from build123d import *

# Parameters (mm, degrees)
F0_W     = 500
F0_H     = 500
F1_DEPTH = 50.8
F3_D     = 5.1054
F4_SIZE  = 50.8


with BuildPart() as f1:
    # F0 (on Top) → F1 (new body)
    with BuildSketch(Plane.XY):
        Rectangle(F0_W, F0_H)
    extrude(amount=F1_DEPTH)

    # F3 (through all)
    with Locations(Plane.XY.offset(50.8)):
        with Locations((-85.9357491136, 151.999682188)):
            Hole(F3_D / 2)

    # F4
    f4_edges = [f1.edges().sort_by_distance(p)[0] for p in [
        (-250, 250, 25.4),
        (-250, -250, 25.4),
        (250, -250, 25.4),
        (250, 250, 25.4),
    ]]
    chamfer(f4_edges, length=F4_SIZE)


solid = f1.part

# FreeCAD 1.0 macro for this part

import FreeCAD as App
import Part
import Sketcher

V = App.Vector
Q = App.Units.Quantity


def edges_at(feature, points):
    """Names of the edges that pass closest to the given points."""
    edges = feature.Shape.Edges
    near = lambda p: min(range(len(edges)), key=lambda i: edges[i].distToShape(Part.Vertex(*p))[0])
    return sorted({f"Edge{near(p) + 1}" for p in points})

doc = App.newDocument("Part")
params = doc.addObject("Spreadsheet::Sheet", "Params")
for row, (alias, value) in enumerate([
    ("pad1_length", "2 in"),
    ("sketch2_diameter", "0.201 in"),
    ("hole_diameter", "0.201 in"),
    ("chamfer_size", "2 in"),
], start=1):
    params.set(f"A{row}", alias)
    params.set(f"B{row}", "=" + value)
    params.setAlias(f"B{row}", alias)

body = doc.addObject("PartDesign::Body", "Body")

# Sketch on XY plane
sketch1 = doc.addObject("Sketcher::SketchObject", "Sketch")
body.addObject(sketch1)
sketch1.AttachmentSupport = (doc.XY_Plane, [""])
sketch1.MapMode = "FlatFace"
sketch1.addGeometry(Part.LineSegment(V(-250, 250, 0), V(-250, -250, 0)), False)
sketch1.addGeometry(Part.LineSegment(V(-250, -250, 0), V(250, -250, 0)), False)
sketch1.addGeometry(Part.LineSegment(V(250, -250, 0), V(250, 250, 0)), False)
sketch1.addGeometry(Part.LineSegment(V(250, 250, 0), V(-250, 250, 0)), False)
sketch1.addConstraint(Sketcher.Constraint("Coincident", 0, 2, 1, 1))
sketch1.addConstraint(Sketcher.Constraint("Coincident", 1, 2, 2, 1))
sketch1.addConstraint(Sketcher.Constraint("Coincident", 2, 2, 3, 1))
sketch1.addConstraint(Sketcher.Constraint("Coincident", 3, 2, 0, 1))
sketch1.addConstraint(Sketcher.Constraint("Vertical", 0))
sketch1.addConstraint(Sketcher.Constraint("Horizontal", 1))
sketch1.addConstraint(Sketcher.Constraint("Vertical", 2))
sketch1.addConstraint(Sketcher.Constraint("Horizontal", 3))
sketch1.addConstraint(Sketcher.Constraint("Symmetric", 0, 2, 2, 2, -1, 1))
sketch1.addConstraint(Sketcher.Constraint("Equal", 3, 0))
sketch1.addConstraint(Sketcher.Constraint("DistanceX", 1, 1, 1, 2, 500.0))
pad1 = doc.addObject("PartDesign::Pad", "Pad")
body.addObject(pad1)
pad1.Profile = sketch1
pad1.setExpression("Length", "Params.pad1_length")

# Sketch on XY plane
sketch2 = doc.addObject("Sketcher::SketchObject", "Sketch001")
body.addObject(sketch2)
sketch2.AttachmentSupport = (doc.XY_Plane, [""])
sketch2.MapMode = "FlatFace"
sketch2.AttachmentOffset = App.Placement(V(0, 0, 2 * 25.4), App.Rotation())
sketch2.addGeometry(Part.Circle(V(-85.935749, 151.999682, 0), V(0, 0, 1), 2.5527), False)
sketch2.addConstraint(Sketcher.Constraint("Diameter", 0, Q("0.201 in")))
sketch2.addConstraint(Sketcher.Constraint("DistanceX", 0, 3, -1, 1, 85.935749))
sketch2.addConstraint(Sketcher.Constraint("DistanceY", -1, 1, 0, 3, 151.999682))
sketch2.setExpression("Constraints[0]", "Params.sketch2_diameter")
doc.recompute()
hole = doc.addObject("PartDesign::Hole", "Hole")
body.addObject(hole)
hole.Profile = sketch2
hole.ThreadType = "None"
hole.setExpression("Diameter", "Params.hole_diameter")
hole.DepthType = "ThroughAll"
doc.recompute()

chamfer = doc.addObject("PartDesign::Chamfer", "Chamfer")
body.addObject(chamfer)
chamfer.Base = (hole, edges_at(hole, [
    (-250, 250, 25.4),
    (-250, -250, 25.4),
    (250, -250, 25.4),
    (250, 250, 25.4),
]))
chamfer.setExpression("Size", "Params.chamfer_size")

doc.recompute()
